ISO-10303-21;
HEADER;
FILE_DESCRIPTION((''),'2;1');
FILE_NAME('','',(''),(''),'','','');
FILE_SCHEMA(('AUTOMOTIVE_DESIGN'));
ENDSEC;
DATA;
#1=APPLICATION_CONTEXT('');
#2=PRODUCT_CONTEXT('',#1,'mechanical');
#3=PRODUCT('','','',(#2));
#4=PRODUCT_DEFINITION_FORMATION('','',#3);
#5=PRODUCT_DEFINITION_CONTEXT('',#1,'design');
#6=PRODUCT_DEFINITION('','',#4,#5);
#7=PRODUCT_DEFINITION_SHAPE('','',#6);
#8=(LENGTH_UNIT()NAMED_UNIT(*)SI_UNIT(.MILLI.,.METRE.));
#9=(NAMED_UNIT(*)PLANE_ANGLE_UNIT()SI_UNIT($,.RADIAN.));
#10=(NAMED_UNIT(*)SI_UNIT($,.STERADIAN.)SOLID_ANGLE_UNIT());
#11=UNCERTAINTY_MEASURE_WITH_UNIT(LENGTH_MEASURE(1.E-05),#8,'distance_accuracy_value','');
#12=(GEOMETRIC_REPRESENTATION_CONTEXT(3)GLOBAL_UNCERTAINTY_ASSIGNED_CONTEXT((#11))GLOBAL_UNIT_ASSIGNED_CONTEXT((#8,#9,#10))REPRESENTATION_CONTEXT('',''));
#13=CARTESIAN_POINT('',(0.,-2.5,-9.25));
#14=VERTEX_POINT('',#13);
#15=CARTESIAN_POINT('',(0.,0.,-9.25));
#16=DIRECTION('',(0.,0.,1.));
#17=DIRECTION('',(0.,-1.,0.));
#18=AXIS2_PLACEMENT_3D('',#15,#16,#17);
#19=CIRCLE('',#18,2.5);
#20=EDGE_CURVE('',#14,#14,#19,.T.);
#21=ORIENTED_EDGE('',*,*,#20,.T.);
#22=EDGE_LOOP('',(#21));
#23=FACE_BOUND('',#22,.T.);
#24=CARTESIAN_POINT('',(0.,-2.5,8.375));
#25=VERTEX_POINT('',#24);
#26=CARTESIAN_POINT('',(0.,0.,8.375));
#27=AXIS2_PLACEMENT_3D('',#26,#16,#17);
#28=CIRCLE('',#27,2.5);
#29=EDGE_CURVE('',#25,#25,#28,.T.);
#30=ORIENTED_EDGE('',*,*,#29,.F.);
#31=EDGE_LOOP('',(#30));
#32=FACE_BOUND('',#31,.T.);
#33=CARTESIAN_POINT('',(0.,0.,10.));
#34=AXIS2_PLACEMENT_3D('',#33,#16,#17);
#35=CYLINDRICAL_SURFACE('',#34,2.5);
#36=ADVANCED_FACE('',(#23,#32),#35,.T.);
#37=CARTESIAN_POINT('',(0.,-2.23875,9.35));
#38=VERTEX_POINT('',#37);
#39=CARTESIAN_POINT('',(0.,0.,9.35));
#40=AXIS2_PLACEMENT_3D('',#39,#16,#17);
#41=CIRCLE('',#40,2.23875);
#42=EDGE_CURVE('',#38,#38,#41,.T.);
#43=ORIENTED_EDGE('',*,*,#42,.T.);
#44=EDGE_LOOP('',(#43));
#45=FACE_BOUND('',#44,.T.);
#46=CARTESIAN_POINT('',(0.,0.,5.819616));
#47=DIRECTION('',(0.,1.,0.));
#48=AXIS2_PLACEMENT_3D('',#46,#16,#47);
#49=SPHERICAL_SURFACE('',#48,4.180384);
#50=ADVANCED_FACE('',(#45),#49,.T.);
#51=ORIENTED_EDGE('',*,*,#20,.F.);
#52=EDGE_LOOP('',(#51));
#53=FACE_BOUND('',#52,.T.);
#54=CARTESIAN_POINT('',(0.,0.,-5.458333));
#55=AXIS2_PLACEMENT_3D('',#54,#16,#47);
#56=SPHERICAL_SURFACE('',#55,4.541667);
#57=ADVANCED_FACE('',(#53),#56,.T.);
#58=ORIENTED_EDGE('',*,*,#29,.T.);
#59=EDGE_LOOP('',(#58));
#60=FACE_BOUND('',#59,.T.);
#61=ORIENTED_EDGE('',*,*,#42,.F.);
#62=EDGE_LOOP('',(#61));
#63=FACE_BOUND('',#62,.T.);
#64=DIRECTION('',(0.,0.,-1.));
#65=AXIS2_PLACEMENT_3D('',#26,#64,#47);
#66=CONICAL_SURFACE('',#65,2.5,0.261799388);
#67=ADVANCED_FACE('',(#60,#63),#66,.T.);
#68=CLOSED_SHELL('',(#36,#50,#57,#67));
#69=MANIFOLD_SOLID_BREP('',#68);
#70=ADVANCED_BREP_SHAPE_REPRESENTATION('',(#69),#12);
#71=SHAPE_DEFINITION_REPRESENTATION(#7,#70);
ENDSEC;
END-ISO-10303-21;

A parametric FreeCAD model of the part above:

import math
import FreeCAD as App
import Part
import Sketcher
from FreeCAD import Vector
Q = App.Units.Quantity

doc = App.newDocument("Part")
params = doc.addObject("Spreadsheet::Sheet", "Params")
for row, (alias, value) in enumerate([
    ("sketch1_height", "20 mm"),
    ("revolution_angle", "360 deg"),
], start=1):
    params.set(f"A{row}", alias)
    params.set(f"B{row}", "=" + value)
    params.setAlias(f"B{row}", alias)

body = doc.addObject("PartDesign::Body", "Body")

# Sketch on YZ plane
sketch1 = body.newObject("Sketcher::SketchObject", "Sketch")
sketch1.AttachmentSupport = (doc.getObject("YZ_Plane"), [""])
sketch1.MapMode = "FlatFace"
sketch1.addGeometry([
    Part.LineSegment(Vector(0, 10, 0), Vector(0, -10, 0)),  # 0
    Part.ArcOfCircle(Part.Circle(Vector(0, -5.5, 0), Vector(0, 0, 1), 4.5), math.radians(-90), math.radians(-57)),  # 1
    Part.LineSegment(Vector(2.5, -9.2, 0), Vector(2.5, 8.4, 0)),  # 2
    Part.LineSegment(Vector(2.5, 8.4, 0), Vector(2.2, 9.3, 0)),  # 3
    Part.ArcOfCircle(Part.Circle(Vector(0, 5.8, 0), Vector(0, 0, 1), 4.2), math.radians(58), math.radians(90)),  # 4
], False)
sketch1.addConstraint([
    Sketcher.Constraint("Coincident", 0, 2, 1, 1),
    Sketcher.Constraint("Coincident", 1, 2, 2, 1),
    Sketcher.Constraint("Coincident", 2, 2, 3, 1),
    Sketcher.Constraint("Coincident", 3, 2, 4, 1),
    Sketcher.Constraint("Coincident", 4, 2, 0, 1),
    Sketcher.Constraint("Vertical", 0),
    Sketcher.Constraint("Vertical", 2),
    Sketcher.Constraint("Symmetric", 0, 2, 4, 2, -1, 1),
    Sketcher.Constraint("PointOnObject", 1, 3, -2),
    Sketcher.Constraint("PointOnObject", 4, 3, -2),
    Sketcher.Constraint("DistanceY", 0, 2, 0, 1, Q("20 mm")),
    Sketcher.Constraint("Angle", 3, Q("105 deg")),
    Sketcher.Constraint("DistanceX", -1, 1, 1, 2, Q("2.5 mm")),
    Sketcher.Constraint("DistanceY", 1, 2, 3, 2, Q("18.6 mm")),
    Sketcher.Constraint("DistanceY", 2, 1, 2, 2, Q("17.625 mm")),
    Sketcher.Constraint("DistanceY", 1, 2, -1, 1, Q("9.25 mm")),
])
sketch1.setExpression("Constraints[10]", "Params.sketch1_height")
revolution = body.newObject("PartDesign::Revolution", "Revolution")
revolution.Profile = sketch1
revolution.ReferenceAxis = (sketch1, ["V_Axis"])
revolution.setExpression("Angle", "Params.revolution_angle")

doc.recompute()
